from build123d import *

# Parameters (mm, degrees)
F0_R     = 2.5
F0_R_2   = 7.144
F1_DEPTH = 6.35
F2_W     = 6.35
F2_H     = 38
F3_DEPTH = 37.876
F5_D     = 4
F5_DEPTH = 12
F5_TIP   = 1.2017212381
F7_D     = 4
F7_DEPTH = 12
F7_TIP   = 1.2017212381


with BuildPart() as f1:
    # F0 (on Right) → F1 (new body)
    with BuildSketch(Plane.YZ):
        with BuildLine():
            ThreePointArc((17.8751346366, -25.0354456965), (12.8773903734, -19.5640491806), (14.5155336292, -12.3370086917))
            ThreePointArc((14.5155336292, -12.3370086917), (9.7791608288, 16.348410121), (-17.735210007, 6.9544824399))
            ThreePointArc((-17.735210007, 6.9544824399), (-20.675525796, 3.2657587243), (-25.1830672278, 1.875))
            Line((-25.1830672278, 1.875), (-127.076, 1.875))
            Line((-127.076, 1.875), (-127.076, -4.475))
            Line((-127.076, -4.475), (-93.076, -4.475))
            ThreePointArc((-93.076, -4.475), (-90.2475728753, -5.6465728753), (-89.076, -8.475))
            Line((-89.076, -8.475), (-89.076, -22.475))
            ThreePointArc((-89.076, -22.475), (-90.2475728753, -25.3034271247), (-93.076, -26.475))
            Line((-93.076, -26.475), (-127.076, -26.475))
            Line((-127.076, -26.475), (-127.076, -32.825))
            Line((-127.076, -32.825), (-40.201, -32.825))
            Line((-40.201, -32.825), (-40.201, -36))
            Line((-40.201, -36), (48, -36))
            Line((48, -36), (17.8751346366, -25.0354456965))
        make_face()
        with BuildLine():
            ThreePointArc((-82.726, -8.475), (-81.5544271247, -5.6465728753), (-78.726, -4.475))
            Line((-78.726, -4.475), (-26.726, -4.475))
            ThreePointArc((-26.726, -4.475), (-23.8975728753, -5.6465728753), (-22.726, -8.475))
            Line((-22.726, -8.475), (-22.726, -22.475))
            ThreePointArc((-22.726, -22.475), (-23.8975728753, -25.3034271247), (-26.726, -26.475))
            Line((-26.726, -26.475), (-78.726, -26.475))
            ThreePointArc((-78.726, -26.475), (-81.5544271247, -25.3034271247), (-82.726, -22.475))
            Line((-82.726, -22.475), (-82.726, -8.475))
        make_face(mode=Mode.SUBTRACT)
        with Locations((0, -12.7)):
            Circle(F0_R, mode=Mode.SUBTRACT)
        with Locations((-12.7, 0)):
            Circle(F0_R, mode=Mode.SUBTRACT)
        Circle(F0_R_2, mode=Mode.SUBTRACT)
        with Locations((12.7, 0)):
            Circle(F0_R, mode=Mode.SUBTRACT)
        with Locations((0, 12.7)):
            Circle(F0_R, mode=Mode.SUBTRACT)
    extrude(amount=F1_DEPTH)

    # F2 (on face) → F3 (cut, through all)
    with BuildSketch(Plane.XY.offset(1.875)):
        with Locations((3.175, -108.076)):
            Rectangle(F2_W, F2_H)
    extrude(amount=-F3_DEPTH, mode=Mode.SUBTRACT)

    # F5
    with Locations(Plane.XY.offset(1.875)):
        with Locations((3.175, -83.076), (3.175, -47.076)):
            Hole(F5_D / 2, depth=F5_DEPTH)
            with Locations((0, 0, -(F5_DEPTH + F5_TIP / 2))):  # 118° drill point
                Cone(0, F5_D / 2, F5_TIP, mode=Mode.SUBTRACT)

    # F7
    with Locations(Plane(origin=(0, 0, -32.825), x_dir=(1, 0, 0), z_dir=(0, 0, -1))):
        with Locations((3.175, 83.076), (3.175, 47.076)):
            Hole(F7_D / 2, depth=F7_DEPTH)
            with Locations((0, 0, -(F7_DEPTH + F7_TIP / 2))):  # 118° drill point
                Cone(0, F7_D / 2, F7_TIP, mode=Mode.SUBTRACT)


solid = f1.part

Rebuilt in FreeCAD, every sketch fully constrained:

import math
import FreeCAD as App
import Part
import Sketcher
from FreeCAD import Vector
Q = App.Units.Quantity

doc = App.newDocument("Part")
body = doc.addObject("PartDesign::Body", "Body")

sketch1 = body.newObject("Sketcher::SketchObject", "Sketch")
sketch1.AttachmentSupport = (doc.getObject("YZ_Plane"), [""])
sketch1.MapMode = "FlatFace"
sketch1.addGeometry([
    Part.ArcOfCircle(Part.Circle(Vector(20.6, -17.5, 0), Vector(0, 0, 1), 8), math.radians(140), math.radians(250)),
    Part.ArcOfCircle(Part.Circle(Vector(0, 0, 0), Vector(0, 0, 1), 19.1), math.radians(-40), math.radians(159)),
    Part.ArcOfCircle(Part.Circle(Vector(-25.2, 9.9, 0), Vector(0, 0, 1), 8), math.radians(-90), math.radians(-21)),
    Part.LineSegment(Vector(-25.2, 1.9, 0), Vector(-127.1, 1.9, 0)),
    Part.LineSegment(Vector(-127.1, 1.9, 0), Vector(-127.1, -4.5, 0)),
    Part.LineSegment(Vector(-127.1, -4.5, 0), Vector(-93.1, -4.5, 0)),
    Part.ArcOfCircle(Part.Circle(Vector(-93.1, -8.5, 0), Vector(0, 0, 1), 4), math.radians(0), math.radians(90)),
    Part.LineSegment(Vector(-89.1, -8.5, 0), Vector(-89.1, -22.5, 0)),
    Part.ArcOfCircle(Part.Circle(Vector(-93.1, -22.5, 0), Vector(0, 0, 1), 4), math.radians(-90), math.radians(0)),
    Part.LineSegment(Vector(-93.1, -26.5, 0), Vector(-127.1, -26.5, 0)),
    Part.LineSegment(Vector(-127.1, -26.5, 0), Vector(-127.1, -32.8, 0)),
    Part.LineSegment(Vector(-127.1, -32.8, 0), Vector(-40.2, -32.8, 0)),
    Part.LineSegment(Vector(-40.2, -32.8, 0), Vector(-40.2, -36, 0)),
    Part.LineSegment(Vector(-40.2, -36, 0), Vector(48, -36, 0)),
    Part.LineSegment(Vector(48, -36, 0), Vector(17.9, -25, 0)),
    Part.LineSegment(Vector(-82.7, -22.5, 0), Vector(-82.7, -8.5, 0)),
    Part.ArcOfCircle(Part.Circle(Vector(-78.7, -8.5, 0), Vector(0, 0, 1), 4), math.radians(90), math.radians(180)),
    Part.LineSegment(Vector(-78.7, -4.5, 0), Vector(-26.7, -4.5, 0)),
    Part.ArcOfCircle(Part.Circle(Vector(-26.7, -8.5, 0), Vector(0, 0, 1), 4), math.radians(0), math.radians(90)),
    Part.LineSegment(Vector(-22.7, -8.5, 0), Vector(-22.7, -22.5, 0)),
    Part.ArcOfCircle(Part.Circle(Vector(-26.7, -22.5, 0), Vector(0, 0, 1), 4), math.radians(-90), math.radians(0)),
    Part.LineSegment(Vector(-26.7, -26.5, 0), Vector(-78.7, -26.5, 0)),
    Part.ArcOfCircle(Part.Circle(Vector(-78.7, -22.5, 0), Vector(0, 0, 1), 4), math.radians(180), math.radians(270)),
    Part.Circle(Vector(0, -12.7, 0), Vector(0, 0, 1), 2.5),
    Part.Circle(Vector(-12.7, 0, 0), Vector(0, 0, 1), 2.5),
    Part.Circle(Vector(0, 0, 0), Vector(0, 0, 1), 7.1),
    Part.Circle(Vector(12.7, 0, 0), Vector(0, 0, 1), 2.5),
    Part.Circle(Vector(0, 12.7, 0), Vector(0, 0, 1), 2.5),
], False)
sketch1.addConstraint([
    Sketcher.Constraint("Tangent", 0, 1, 1, 1),
    Sketcher.Constraint("Tangent", 1, 2, 2, 2),
    Sketcher.Constraint("Tangent", 2, 1, 3, 1),
    Sketcher.Constraint("Coincident", 3, 2, 4, 1),
    Sketcher.Constraint("Coincident", 4, 2, 5, 1),
    Sketcher.Constraint("Tangent", 5, 2, 6, 2),
    Sketcher.Constraint("Tangent", 6, 1, 7, 1),
    Sketcher.Constraint("Tangent", 7, 2, 8, 2),
    Sketcher.Constraint("Tangent", 8, 1, 9, 1),
    Sketcher.Constraint("Coincident", 9, 2, 10, 1),
    Sketcher.Constraint("Coincident", 10, 2, 11, 1),
    Sketcher.Constraint("Coincident", 11, 2, 12, 1),
    Sketcher.Constraint("Coincident", 12, 2, 13, 1),
    Sketcher.Constraint("Coincident", 13, 2, 14, 1),
    Sketcher.Constraint("Tangent", 14, 2, 0, 2),
    Sketcher.Constraint("Tangent", 15, 2, 16, 2),
    Sketcher.Constraint("Tangent", 16, 1, 17, 1),
    Sketcher.Constraint("Tangent", 17, 2, 18, 2),
    Sketcher.Constraint("Tangent", 18, 1, 19, 1),
    Sketcher.Constraint("Tangent", 19, 2, 20, 2),
    Sketcher.Constraint("Tangent", 20, 1, 21, 1),
    Sketcher.Constraint("Tangent", 21, 2, 22, 2),
    Sketcher.Constraint("Tangent", 22, 1, 15, 1),
    Sketcher.Constraint("Horizontal", 3),
    Sketcher.Constraint("Vertical", 4),
    Sketcher.Constraint("Horizontal", 5),
    Sketcher.Constraint("Vertical", 7),
    Sketcher.Constraint("Horizontal", 9),
    Sketcher.Constraint("Vertical", 10),
    Sketcher.Constraint("Horizontal", 11),
    Sketcher.Constraint("Vertical", 12),
    Sketcher.Constraint("Horizontal", 13),
    Sketcher.Constraint("Vertical", 15),
    Sketcher.Constraint("Horizontal", 17),
    Sketcher.Constraint("Vertical", 19),
    Sketcher.Constraint("Horizontal", 21),
    Sketcher.Constraint("Coincident", 1, 3, -1, 1),
    Sketcher.Constraint("Coincident", 25, 3, -1, 1),
    Sketcher.Constraint("Equal", 0, 2),
    Sketcher.Constraint("Equal", 6, 8),
    Sketcher.Constraint("Equal", 8, 16),
    Sketcher.Constraint("Equal", 16, 18),
    Sketcher.Constraint("Equal", 18, 20),
    Sketcher.Constraint("Equal", 20, 22),
    Sketcher.Constraint("Equal", 23, 24),
    Sketcher.Constraint("Equal", 24, 26),
    Sketcher.Constraint("Equal", 26, 27),
    Sketcher.Constraint("Symmetric", 24, 3, 26, 3, -1, 1),
    Sketcher.Constraint("Symmetric", 23, 3, 27, 3, -1, 1),
    Sketcher.Constraint("PointOnObject", 23, 3, -2),
    Sketcher.Constraint("PointOnObject", 24, 3, -1),
    Sketcher.Constraint("Horizontal", 6, 3, 16, 3),
    Sketcher.Constraint("Horizontal", 8, 3, 20, 3),
    Sketcher.Constraint("Vertical", 4, 2, 9, 2),
    Sketcher.Constraint("Equal", 4, 10),
    Sketcher.Constraint("Diameter", 23, 5.0),
    Sketcher.Constraint("Radius", 0, 8.0),
    Sketcher.Constraint("Radius", 6, 4.0),
    Sketcher.Constraint("DistanceX", 5, 1, 5, 2, 34.0),
    Sketcher.Constraint("DistanceX", 17, 1, 17, 2, 52.0),
    Sketcher.Constraint("DistanceY", 7, 2, 7, 1, 14.0),
    Sketcher.Constraint("Angle", 14, Q("160 deg")),
    Sketcher.Constraint("Radius", 1, 19.05),
    Sketcher.Constraint("Diameter", 25, 14.288),
    Sketcher.Constraint("DistanceY", 12, 2, -1, 1, 36.0),
    Sketcher.Constraint("DistanceX", -1, 1, 13, 2, 48.0),
    Sketcher.Constraint("DistanceY", 4, 2, 4, 1, 6.35),
    Sketcher.Constraint("DistanceY", 23, 3, -1, 1, 12.7),
    Sketcher.Constraint("DistanceX", 24, 3, -1, 1, 12.7),
    Sketcher.Constraint("DistanceX", 11, 1, 11, 2, 86.875),
    Sketcher.Constraint("DistanceX", 13, 1, 13, 2, 88.201),
    Sketcher.Constraint("DistanceY", 12, 2, 12, 1, 3.175),
    Sketcher.Constraint("DistanceX", 6, 3, 16, 3, 14.35),
])
pad1 = body.newObject("PartDesign::Pad", "Pad")
pad1.Profile = sketch1
pad1.Length = 6.35

sketch2 = body.newObject("Sketcher::SketchObject", "Sketch001")
sketch2.AttachmentSupport = (doc.getObject("XY_Plane"), [""])
sketch2.MapMode = "FlatFace"
sketch2.AttachmentOffset = App.Placement(Vector(0, 0, 1.875), App.Rotation())
sketch2.addGeometry([
    Part.LineSegment(Vector(0, -89, 0), Vector(0, -127, 0)),
    Part.LineSegment(Vector(0, -127, 0), Vector(6, -127, 0)),
    Part.LineSegment(Vector(6, -127, 0), Vector(6, -89, 0)),
    Part.LineSegment(Vector(6, -89, 0), Vector(0, -89, 0)),
], False)
sketch2.addConstraint([
    Sketcher.Constraint("Coincident", 0, 2, 1, 1),
    Sketcher.Constraint("Coincident", 1, 2, 2, 1),
    Sketcher.Constraint("Coincident", 2, 2, 3, 1),
    Sketcher.Constraint("Coincident", 3, 2, 0, 1),
    Sketcher.Constraint("Vertical", 0),
    Sketcher.Constraint("Horizontal", 1),
    Sketcher.Constraint("Vertical", 2),
    Sketcher.Constraint("Horizontal", 3),
    Sketcher.Constraint("PointOnObject", 0, 2, -2),
    Sketcher.Constraint("DistanceY", 0, 2, 0, 1, 38.0),
    Sketcher.Constraint("DistanceX", 1, 1, 1, 2, 6.35),
    Sketcher.Constraint("DistanceY", 0, 2, -1, 1, 127.076),
])
pocket1 = body.newObject("PartDesign::Pocket", "Pocket")
pocket1.Profile = sketch2
pocket1.Type = "ThroughAll"

sketch3 = body.newObject("Sketcher::SketchObject", "Sketch002")
sketch3.AttachmentSupport = (doc.getObject("XY_Plane"), [""])
sketch3.MapMode = "FlatFace"
sketch3.AttachmentOffset = App.Placement(Vector(0, 0, 1.875), App.Rotation())
sketch3.addGeometry([
    Part.Circle(Vector(3.2, -83.1, 0), Vector(0, 0, 1), 2),
    Part.Circle(Vector(3.2, -47.1, 0), Vector(0, 0, 1), 2),
], False)
sketch3.addConstraint([
    Sketcher.Constraint("Equal", 0, 1),
    Sketcher.Constraint("Vertical", 0, 3, 1, 3),
    Sketcher.Constraint("Diameter", 0, 4.0),
    Sketcher.Constraint("DistanceY", 0, 3, 1, 3, 36.0),
    Sketcher.Constraint("DistanceX", -1, 1, 0, 3, 3.175),
    Sketcher.Constraint("DistanceY", 0, 3, -1, 1, 83.076),
])
doc.recompute()
hole = body.newObject("PartDesign::Hole", "Hole")
hole.Profile = sketch3
hole.ThreadType = "None"
hole.Diameter = 4
hole.DepthType = "Dimension"
hole.Depth = 12
hole.DrillPoint = "Angled"
hole.DrillPointAngle = 118

sketch4 = body.newObject("Sketcher::SketchObject", "Sketch003")
sketch4.AttachmentSupport = (doc.getObject("XY_Plane"), [""])
sketch4.MapMode = "FlatFace"
sketch4.AttachmentOffset = App.Placement(Vector(0, 0, -32.825), App.Rotation())
sketch4.addGeometry([
    Part.Circle(Vector(3.2, -83.1, 0), Vector(0, 0, 1), 2),
    Part.Circle(Vector(3.2, -47.1, 0), Vector(0, 0, 1), 2),
], False)
sketch4.addConstraint([
    Sketcher.Constraint("Equal", 0, 1),
    Sketcher.Constraint("Vertical", 0, 3, 1, 3),
    Sketcher.Constraint("Diameter", 0, 4.0),
    Sketcher.Constraint("DistanceY", 0, 3, 1, 3, 36.0),
    Sketcher.Constraint("DistanceX", -1, 1, 0, 3, 3.175),
    Sketcher.Constraint("DistanceY", 0, 3, -1, 1, 83.076),
])
doc.recompute()
hole2 = body.newObject("PartDesign::Hole", "Hole001")
hole2.Profile = sketch4
hole2.ThreadType = "None"
hole2.Diameter = 4
hole2.DepthType = "Dimension"
hole2.Depth = 12
hole2.DrillPoint = "Angled"
hole2.DrillPointAngle = 118
hole2.Reversed = True

doc.recompute()
